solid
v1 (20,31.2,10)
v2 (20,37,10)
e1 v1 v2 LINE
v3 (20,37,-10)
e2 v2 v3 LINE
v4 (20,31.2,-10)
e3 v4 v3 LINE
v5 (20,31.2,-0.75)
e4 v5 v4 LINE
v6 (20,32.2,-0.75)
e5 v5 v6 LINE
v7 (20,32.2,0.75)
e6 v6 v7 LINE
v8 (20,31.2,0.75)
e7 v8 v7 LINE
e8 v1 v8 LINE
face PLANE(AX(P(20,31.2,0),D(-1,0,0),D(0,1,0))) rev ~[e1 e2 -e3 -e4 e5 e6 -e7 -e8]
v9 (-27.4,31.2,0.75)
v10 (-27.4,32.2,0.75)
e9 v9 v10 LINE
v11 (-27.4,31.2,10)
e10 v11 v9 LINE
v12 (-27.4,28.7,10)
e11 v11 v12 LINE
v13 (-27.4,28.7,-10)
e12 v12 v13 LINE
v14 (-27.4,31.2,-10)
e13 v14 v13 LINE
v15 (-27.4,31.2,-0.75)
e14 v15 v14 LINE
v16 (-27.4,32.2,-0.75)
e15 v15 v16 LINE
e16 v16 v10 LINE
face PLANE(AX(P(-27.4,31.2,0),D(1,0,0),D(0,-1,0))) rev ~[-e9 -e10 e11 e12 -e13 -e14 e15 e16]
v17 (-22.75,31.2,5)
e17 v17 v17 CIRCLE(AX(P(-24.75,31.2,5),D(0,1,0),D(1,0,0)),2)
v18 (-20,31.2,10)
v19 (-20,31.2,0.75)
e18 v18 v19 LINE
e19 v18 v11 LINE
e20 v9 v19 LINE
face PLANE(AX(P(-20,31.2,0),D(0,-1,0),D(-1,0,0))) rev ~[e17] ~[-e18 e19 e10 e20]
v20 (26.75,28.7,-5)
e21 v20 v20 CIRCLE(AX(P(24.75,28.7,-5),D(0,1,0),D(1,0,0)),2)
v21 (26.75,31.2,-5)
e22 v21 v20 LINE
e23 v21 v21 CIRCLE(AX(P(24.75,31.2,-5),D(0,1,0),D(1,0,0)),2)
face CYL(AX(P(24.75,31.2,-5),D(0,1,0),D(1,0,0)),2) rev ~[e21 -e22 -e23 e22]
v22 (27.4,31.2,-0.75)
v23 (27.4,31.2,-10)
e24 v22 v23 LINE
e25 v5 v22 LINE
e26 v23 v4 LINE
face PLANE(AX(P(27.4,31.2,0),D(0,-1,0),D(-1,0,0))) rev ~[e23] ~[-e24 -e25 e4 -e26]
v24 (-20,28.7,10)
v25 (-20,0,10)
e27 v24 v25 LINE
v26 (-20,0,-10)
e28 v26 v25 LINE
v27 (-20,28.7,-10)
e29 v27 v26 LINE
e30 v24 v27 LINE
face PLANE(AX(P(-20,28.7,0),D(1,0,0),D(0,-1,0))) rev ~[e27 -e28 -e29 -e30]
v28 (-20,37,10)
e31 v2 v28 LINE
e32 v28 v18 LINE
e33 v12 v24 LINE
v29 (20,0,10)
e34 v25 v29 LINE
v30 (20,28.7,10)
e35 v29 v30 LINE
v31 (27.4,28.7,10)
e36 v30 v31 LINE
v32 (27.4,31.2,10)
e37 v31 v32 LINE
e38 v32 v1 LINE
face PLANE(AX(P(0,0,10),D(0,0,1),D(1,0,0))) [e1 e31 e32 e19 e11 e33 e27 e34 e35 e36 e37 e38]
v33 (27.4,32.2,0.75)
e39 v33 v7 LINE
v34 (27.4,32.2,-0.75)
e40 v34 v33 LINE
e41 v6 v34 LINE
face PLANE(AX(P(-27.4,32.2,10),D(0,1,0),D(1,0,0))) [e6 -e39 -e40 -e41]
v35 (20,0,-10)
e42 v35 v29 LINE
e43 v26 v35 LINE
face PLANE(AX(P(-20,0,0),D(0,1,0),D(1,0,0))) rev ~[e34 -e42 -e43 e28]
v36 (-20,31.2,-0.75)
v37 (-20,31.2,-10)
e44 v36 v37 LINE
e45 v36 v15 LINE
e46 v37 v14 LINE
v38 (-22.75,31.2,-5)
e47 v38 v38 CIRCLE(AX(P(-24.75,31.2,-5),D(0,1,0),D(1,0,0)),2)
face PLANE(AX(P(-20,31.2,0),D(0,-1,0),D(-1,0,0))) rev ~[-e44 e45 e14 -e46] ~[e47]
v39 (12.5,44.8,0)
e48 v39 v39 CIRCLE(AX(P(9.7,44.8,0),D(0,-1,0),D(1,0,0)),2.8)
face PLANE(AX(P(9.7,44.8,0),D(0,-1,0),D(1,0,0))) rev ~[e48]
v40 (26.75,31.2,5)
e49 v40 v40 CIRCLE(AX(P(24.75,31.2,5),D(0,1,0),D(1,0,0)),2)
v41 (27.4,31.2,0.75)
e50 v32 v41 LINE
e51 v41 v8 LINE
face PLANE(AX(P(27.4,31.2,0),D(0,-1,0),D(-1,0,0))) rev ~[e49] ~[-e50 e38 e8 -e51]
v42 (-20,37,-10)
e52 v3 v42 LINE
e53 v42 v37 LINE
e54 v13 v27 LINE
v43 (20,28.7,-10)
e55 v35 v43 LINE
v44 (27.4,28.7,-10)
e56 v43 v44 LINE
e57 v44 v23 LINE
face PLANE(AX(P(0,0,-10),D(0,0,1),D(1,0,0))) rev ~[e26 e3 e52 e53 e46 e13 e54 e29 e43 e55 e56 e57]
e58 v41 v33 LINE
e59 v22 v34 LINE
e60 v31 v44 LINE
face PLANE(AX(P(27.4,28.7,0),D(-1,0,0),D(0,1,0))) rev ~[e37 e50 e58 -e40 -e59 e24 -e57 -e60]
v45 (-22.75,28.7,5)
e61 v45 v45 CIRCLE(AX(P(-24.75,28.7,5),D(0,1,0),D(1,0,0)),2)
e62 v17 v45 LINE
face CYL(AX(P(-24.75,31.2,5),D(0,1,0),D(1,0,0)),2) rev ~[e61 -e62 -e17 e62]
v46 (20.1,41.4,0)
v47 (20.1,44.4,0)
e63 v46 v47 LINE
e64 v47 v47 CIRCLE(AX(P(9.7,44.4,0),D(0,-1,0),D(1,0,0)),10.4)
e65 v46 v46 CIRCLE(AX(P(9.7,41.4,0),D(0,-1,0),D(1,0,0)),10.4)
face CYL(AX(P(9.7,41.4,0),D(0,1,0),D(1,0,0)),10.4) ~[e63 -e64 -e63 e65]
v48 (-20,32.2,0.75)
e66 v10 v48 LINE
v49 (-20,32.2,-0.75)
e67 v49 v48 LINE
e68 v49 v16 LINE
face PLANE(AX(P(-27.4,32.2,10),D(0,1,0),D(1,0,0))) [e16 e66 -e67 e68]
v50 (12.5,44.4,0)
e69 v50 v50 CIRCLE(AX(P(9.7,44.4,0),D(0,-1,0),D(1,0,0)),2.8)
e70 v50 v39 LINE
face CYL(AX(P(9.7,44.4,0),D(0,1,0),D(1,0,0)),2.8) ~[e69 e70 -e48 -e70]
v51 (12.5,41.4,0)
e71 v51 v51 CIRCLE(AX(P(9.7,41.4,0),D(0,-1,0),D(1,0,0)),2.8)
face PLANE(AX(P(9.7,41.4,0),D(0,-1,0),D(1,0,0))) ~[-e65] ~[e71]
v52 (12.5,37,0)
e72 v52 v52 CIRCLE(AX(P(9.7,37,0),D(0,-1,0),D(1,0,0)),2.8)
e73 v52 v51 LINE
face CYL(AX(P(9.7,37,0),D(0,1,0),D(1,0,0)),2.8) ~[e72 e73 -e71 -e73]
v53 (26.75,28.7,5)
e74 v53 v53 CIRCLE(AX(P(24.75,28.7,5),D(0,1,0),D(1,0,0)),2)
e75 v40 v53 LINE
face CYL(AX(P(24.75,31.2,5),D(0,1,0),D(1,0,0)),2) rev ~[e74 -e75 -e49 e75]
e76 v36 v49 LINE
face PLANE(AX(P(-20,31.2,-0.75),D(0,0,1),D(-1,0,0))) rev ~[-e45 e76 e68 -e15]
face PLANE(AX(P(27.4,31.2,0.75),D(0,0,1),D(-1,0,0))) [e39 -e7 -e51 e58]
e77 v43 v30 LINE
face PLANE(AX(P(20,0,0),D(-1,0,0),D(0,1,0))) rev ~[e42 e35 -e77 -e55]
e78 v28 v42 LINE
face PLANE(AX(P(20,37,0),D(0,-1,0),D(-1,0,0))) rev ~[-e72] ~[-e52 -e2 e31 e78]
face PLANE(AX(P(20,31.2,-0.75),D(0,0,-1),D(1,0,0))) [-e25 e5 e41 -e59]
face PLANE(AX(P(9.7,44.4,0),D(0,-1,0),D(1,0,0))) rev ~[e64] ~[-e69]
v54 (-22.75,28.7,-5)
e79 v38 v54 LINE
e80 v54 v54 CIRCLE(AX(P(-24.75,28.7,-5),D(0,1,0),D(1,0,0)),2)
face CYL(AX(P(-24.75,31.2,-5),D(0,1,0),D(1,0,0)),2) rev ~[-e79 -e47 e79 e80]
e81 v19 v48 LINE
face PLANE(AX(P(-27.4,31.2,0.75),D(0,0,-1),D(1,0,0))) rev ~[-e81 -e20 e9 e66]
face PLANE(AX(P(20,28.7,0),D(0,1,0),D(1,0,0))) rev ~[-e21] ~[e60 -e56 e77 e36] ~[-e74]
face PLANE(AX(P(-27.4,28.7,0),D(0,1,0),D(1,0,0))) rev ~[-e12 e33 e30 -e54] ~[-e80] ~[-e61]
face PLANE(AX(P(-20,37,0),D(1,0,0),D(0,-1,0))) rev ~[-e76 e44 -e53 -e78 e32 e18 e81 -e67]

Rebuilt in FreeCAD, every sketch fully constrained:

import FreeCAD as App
import Part
import Sketcher
Q = App.Units.Quantity


def add_polygon(sketch, points):
    """Adds a closed chain of lines whose ends are joined by coincident constraints."""
    first, n = sketch.GeometryCount, len(points)
    for a, b in zip(points, points[1:] + points[:1]):
        sketch.addGeometry(Part.LineSegment(App.Vector(*a, 0), App.Vector(*b, 0)), False)
    for i in range(n):
        sketch.addConstraint(Sketcher.Constraint("Coincident", first + i, 2, first + (i + 1) % n, 1))

doc = App.newDocument("Part")
body = doc.addObject("PartDesign::Body", "Body")

# Sketch on XY plane
sketch1 = doc.addObject("Sketcher::SketchObject", "Sketch")
body.addObject(sketch1)
sketch1.AttachmentSupport = (doc.XY_Plane, [""])
sketch1.MapMode = "FlatFace"
add_polygon(sketch1, [(-20, 28.7), (-20, 0), (20, 0), (20, 28.7), (27.4, 28.7), (27.4, 31.2), (20, 31.2), (20, 37), (-20, 37), (-20, 31.2), (-27.4, 31.2), (-27.4, 28.7)])  # lines 0-11
sketch1.addConstraint([
    Sketcher.Constraint("Vertical", 0),
    Sketcher.Constraint("Horizontal", 1),
    Sketcher.Constraint("Vertical", 2),
    Sketcher.Constraint("Horizontal", 3),
    Sketcher.Constraint("Vertical", 4),
    Sketcher.Constraint("Horizontal", 5),
    Sketcher.Constraint("Vertical", 6),
    Sketcher.Constraint("Horizontal", 7),
    Sketcher.Constraint("Vertical", 8),
    Sketcher.Constraint("Horizontal", 9),
    Sketcher.Constraint("Vertical", 10),
    Sketcher.Constraint("Horizontal", 11),
    Sketcher.Constraint("Symmetric", 0, 2, 1, 2, -1, 1),
    Sketcher.Constraint("Symmetric", 5, 2, 8, 2, -2),
    Sketcher.Constraint("Symmetric", 3, 2, 10, 2, -2),
    Sketcher.Constraint("Vertical", 2, 2, 5, 2),
    Sketcher.Constraint("DistanceX", 1, 1, 1, 2, Q("40 mm")),
    Sketcher.Constraint("DistanceX", 3, 1, 3, 2, Q("7.4 mm")),
    Sketcher.Constraint("DistanceY", 0, 2, 0, 1, Q("28.7 mm")),
    Sketcher.Constraint("DistanceY", 4, 1, 4, 2, Q("2.5 mm")),
    Sketcher.Constraint("DistanceY", 6, 1, 6, 2, Q("5.8 mm")),
])
pad1 = doc.addObject("PartDesign::Pad", "Pad")
body.addObject(pad1)
pad1.Profile = sketch1
pad1.Length = 20
pad1.Midplane = True

# Sketch on XY plane
sketch2 = doc.addObject("Sketcher::SketchObject", "Sketch001")
body.addObject(sketch2)
sketch2.AttachmentSupport = (doc.XY_Plane, [""])
sketch2.MapMode = "FlatFace"
add_polygon(sketch2, [(9.7, 37), (12.5, 37), (12.5, 41.4), (20.1, 41.4), (20.1, 44.4), (12.5, 44.4), (12.5, 44.8), (9.7, 44.8)])  # lines 0-7
sketch2.addGeometry(Part.LineSegment(App.Vector(9.7, 44.8, 0), App.Vector(9.7, 37, 0)), True)  # axis
sketch2.addConstraint([
    Sketcher.Constraint("Horizontal", 0),
    Sketcher.Constraint("Vertical", 1),
    Sketcher.Constraint("Horizontal", 2),
    Sketcher.Constraint("Vertical", 3),
    Sketcher.Constraint("Horizontal", 4),
    Sketcher.Constraint("Vertical", 5),
    Sketcher.Constraint("Horizontal", 6),
    Sketcher.Constraint("Vertical", 7),
    Sketcher.Constraint("Vertical", 8),
    Sketcher.Constraint("Coincident", 8, 1, 6, 2),
    Sketcher.Constraint("Horizontal", 0, 2, 8, 2),
    Sketcher.Constraint("Vertical", 1, 2, 4, 2),
    Sketcher.Constraint("DistanceY", 3, 1, 3, 2, Q("3 mm")),
    Sketcher.Constraint("DistanceX", 0, 1, 0, 2, Q("2.8 mm")),
    Sketcher.Constraint("DistanceY", 1, 1, 1, 2, Q("4.4 mm")),
    Sketcher.Constraint("DistanceY", 5, 1, 5, 2, Q("0.4 mm")),
    Sketcher.Constraint("DistanceX", -1, 1, 6, 2, Q("9.7 mm")),
    Sketcher.Constraint("DistanceX", 6, 2, 3, 2, Q("10.4 mm")),
    Sketcher.Constraint("DistanceY", -1, 1, 0, 2, Q("37 mm")),
])
revolution = doc.addObject("PartDesign::Revolution", "Revolution")
body.addObject(revolution)
revolution.Profile = sketch2
revolution.ReferenceAxis = (sketch2, ["Axis0"])
revolution.Angle = 360

# Sketch on XZ plane
sketch3 = doc.addObject("Sketcher::SketchObject", "Sketch002")
body.addObject(sketch3)
sketch3.AttachmentSupport = (doc.XZ_Plane, [""])
sketch3.MapMode = "FlatFace"
sketch3.AttachmentOffset = App.Placement(App.Vector(0, 0, -31.2), App.Rotation())
sketch3.addGeometry([
    Part.Circle(App.Vector(-24.75, -5, 0), App.Vector(0, 0, 1), 2),
    Part.Circle(App.Vector(-24.75, 5, 0), App.Vector(0, 0, 1), 2),
    Part.Circle(App.Vector(24.75, -5, 0), App.Vector(0, 0, 1), 2),
    Part.Circle(App.Vector(24.75, 5, 0), App.Vector(0, 0, 1), 2),
], False)
sketch3.addConstraint([
    Sketcher.Constraint("Equal", 0, 1),
    Sketcher.Constraint("Equal", 1, 2),
    Sketcher.Constraint("Equal", 2, 3),
    Sketcher.Constraint("Symmetric", 1, 3, 2, 3, -1, 1),
    Sketcher.Constraint("Symmetric", 0, 3, 3, 3, -1, 1),
    Sketcher.Constraint("Symmetric", 0, 3, 2, 3, -2),
    Sketcher.Constraint("Diameter", 0, Q("4 mm")),
    Sketcher.Constraint("DistanceY", 0, 3, 1, 3, Q("10 mm")),
    Sketcher.Constraint("DistanceX", 0, 3, 2, 3, Q("49.5 mm")),
])
pocket1 = doc.addObject("PartDesign::Pocket", "Pocket")
body.addObject(pocket1)
pocket1.Profile = sketch3
pocket1.Type = "UpToFirst"
pocket1.Reversed = True

# Sketch on XZ plane
sketch4 = doc.addObject("Sketcher::SketchObject", "Sketch003")
body.addObject(sketch4)
sketch4.AttachmentSupport = (doc.XZ_Plane, [""])
sketch4.MapMode = "FlatFace"
sketch4.AttachmentOffset = App.Placement(App.Vector(0, 0, -31.2), App.Rotation())
add_polygon(sketch4, [(-20, -0.75), (-27.4, -0.75), (-27.4, 0.75), (-20, 0.75)])  # lines 0-3
add_polygon(sketch4, [(27.4, -0.75), (20, -0.75), (20, 0.75), (27.4, 0.75)])  # lines 4-7
sketch4.addConstraint([
    Sketcher.Constraint("Horizontal", 0),
    Sketcher.Constraint("Vertical", 1),
    Sketcher.Constraint("Horizontal", 2),
    Sketcher.Constraint("Vertical", 3),
    Sketcher.Constraint("Horizontal", 4),
    Sketcher.Constraint("Vertical", 5),
    Sketcher.Constraint("Horizontal", 6),
    Sketcher.Constraint("Vertical", 7),
    Sketcher.Constraint("Symmetric", 2, 2, 4, 2, -1, 1),
    Sketcher.Constraint("Symmetric", 0, 2, 6, 2, -1, 1),
    Sketcher.Constraint("Horizontal", 3, 2, 4, 2),
    Sketcher.Constraint("DistanceX", 0, 2, 0, 1, Q("7.4 mm")),
    Sketcher.Constraint("DistanceY", 1, 1, 1, 2, Q("1.5 mm")),
    Sketcher.Constraint("DistanceX", 2, 2, -1, 1, Q("20 mm")),
])
pad2 = doc.addObject("PartDesign::Pad", "Pad001")
body.addObject(pad2)
pad2.Profile = sketch4
pad2.Length = 1
pad2.Reversed = True

doc.recompute()
